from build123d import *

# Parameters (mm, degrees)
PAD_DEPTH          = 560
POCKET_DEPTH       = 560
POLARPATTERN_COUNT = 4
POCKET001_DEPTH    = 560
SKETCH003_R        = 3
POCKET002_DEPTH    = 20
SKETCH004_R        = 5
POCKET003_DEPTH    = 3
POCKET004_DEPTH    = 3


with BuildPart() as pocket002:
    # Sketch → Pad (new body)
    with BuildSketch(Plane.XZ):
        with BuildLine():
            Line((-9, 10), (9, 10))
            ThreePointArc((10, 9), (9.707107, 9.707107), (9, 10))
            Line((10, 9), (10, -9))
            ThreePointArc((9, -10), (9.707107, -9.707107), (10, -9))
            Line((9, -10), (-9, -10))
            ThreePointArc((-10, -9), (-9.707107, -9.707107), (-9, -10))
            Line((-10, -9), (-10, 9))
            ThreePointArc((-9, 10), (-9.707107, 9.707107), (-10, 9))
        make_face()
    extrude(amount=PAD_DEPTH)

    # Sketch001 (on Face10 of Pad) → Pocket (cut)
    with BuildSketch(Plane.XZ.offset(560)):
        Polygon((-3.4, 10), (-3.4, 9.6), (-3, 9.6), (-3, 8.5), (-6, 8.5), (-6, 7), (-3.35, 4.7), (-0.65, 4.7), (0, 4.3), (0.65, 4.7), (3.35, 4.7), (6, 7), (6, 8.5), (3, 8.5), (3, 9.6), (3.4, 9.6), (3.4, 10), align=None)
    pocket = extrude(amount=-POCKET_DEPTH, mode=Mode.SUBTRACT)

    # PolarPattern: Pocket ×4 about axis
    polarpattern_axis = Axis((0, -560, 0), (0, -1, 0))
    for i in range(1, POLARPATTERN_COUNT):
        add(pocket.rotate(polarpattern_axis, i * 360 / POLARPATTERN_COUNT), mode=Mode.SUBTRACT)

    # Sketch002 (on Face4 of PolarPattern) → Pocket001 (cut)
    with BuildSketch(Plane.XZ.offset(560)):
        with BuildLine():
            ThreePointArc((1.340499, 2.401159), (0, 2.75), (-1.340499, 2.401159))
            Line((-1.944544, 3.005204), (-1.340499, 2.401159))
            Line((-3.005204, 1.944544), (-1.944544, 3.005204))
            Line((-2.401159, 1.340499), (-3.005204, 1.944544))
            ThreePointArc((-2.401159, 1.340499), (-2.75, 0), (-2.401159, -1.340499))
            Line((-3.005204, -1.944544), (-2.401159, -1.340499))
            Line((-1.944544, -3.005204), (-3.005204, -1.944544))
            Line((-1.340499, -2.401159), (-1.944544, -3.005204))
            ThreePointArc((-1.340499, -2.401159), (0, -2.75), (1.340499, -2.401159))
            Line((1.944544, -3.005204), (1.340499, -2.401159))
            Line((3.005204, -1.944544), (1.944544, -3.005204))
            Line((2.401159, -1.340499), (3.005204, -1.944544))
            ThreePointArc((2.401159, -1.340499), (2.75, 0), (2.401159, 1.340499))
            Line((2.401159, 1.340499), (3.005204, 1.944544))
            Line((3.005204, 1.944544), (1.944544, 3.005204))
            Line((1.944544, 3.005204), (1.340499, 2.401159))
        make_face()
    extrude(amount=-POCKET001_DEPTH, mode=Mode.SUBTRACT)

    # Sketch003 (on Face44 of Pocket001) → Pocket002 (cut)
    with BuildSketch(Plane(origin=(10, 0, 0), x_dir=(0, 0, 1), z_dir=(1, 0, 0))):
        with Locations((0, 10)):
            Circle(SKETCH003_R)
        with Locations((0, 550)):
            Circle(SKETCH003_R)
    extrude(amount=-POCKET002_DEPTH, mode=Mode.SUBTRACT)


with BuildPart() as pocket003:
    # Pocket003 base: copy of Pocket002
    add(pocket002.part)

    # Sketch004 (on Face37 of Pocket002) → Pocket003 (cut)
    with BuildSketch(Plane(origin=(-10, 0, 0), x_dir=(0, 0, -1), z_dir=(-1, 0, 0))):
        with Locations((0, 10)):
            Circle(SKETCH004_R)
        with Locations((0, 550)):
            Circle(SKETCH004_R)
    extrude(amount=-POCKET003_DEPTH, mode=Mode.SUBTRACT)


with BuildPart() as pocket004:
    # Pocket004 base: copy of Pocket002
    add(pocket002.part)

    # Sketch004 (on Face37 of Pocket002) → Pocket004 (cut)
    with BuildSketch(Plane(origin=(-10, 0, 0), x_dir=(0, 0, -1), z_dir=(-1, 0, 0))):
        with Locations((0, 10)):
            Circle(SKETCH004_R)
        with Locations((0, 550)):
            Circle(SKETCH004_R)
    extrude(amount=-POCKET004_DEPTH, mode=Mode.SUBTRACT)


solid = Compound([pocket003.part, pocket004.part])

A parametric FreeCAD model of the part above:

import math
import FreeCAD as App
import Part
import Sketcher
from FreeCAD import Vector
Q = App.Units.Quantity

doc = App.newDocument("Part")
body = doc.addObject("PartDesign::Body", "Body")

# Sketch on XZ plane
sketch1 = body.newObject("Sketcher::SketchObject", "Sketch")
sketch1.AttachmentSupport = (doc.getObject("XZ_Plane"), [""])
sketch1.MapMode = "FlatFace"
sketch1.addGeometry([
    Part.LineSegment(Vector(9, 10, 0), Vector(-9, 10, 0)),  # 0
    Part.ArcOfCircle(Part.Circle(Vector(-9, 9, 0), Vector(0, 0, 1), 1), math.radians(90), math.radians(180)),  # 1
    Part.LineSegment(Vector(-10, 9, 0), Vector(-10, -9, 0)),  # 2
    Part.ArcOfCircle(Part.Circle(Vector(-9, -9, 0), Vector(0, 0, 1), 1), math.radians(180), math.radians(270)),  # 3
    Part.LineSegment(Vector(-9, -10, 0), Vector(9, -10, 0)),  # 4
    Part.ArcOfCircle(Part.Circle(Vector(9, -9, 0), Vector(0, 0, 1), 1), math.radians(-90), math.radians(0)),  # 5
    Part.LineSegment(Vector(10, -9, 0), Vector(10, 9, 0)),  # 6
    Part.ArcOfCircle(Part.Circle(Vector(9, 9, 0), Vector(0, 0, 1), 1), math.radians(0), math.radians(90)),  # 7
], False)
sketch1.addConstraint([
    Sketcher.Constraint("Tangent", 0, 2, 1, 1),
    Sketcher.Constraint("Tangent", 1, 2, 2, 1),
    Sketcher.Constraint("Tangent", 2, 2, 3, 1),
    Sketcher.Constraint("Tangent", 3, 2, 4, 1),
    Sketcher.Constraint("Tangent", 4, 2, 5, 1),
    Sketcher.Constraint("Tangent", 5, 2, 6, 1),
    Sketcher.Constraint("Tangent", 6, 2, 7, 1),
    Sketcher.Constraint("Tangent", 7, 2, 0, 1),
    Sketcher.Constraint("Horizontal", 0),
    Sketcher.Constraint("Vertical", 2),
    Sketcher.Constraint("Horizontal", 4),
    Sketcher.Constraint("Vertical", 6),
    Sketcher.Constraint("Equal", 1, 3),
    Sketcher.Constraint("Equal", 3, 5),
    Sketcher.Constraint("Equal", 5, 7),
    Sketcher.Constraint("Symmetric", 1, 3, 5, 3, -1, 1),
    Sketcher.Constraint("Equal", 4, 2),
    Sketcher.Constraint("Radius", 1, Q("0.999999 mm")),
    Sketcher.Constraint("DistanceX", 0, 2, 0, 1, Q("18 mm")),
])
pad1 = body.newObject("PartDesign::Pad", "Pad")
pad1.Profile = sketch1
pad1.Length = 560

# Sketch on XZ plane
sketch2 = body.newObject("Sketcher::SketchObject", "Sketch001")
sketch2.AttachmentSupport = (doc.getObject("XZ_Plane"), [""])
sketch2.MapMode = "FlatFace"
sketch2.AttachmentOffset = App.Placement(Vector(0, 0, 560), App.Rotation())
sketch2.addGeometry([
    Part.LineSegment(Vector(-3.4, 10, 0), Vector(-3.4, 9.6, 0)),  # 0
    Part.LineSegment(Vector(-3.4, 9.6, 0), Vector(-3, 9.6, 0)),  # 1
    Part.LineSegment(Vector(-3, 9.6, 0), Vector(-3, 8.5, 0)),  # 2
    Part.LineSegment(Vector(-3, 8.5, 0), Vector(-6, 8.5, 0)),  # 3
    Part.LineSegment(Vector(-6, 8.5, 0), Vector(-6, 7, 0)),  # 4
    Part.LineSegment(Vector(-6, 7, 0), Vector(-3.35, 4.7, 0)),  # 5
    Part.LineSegment(Vector(-3.35, 4.7, 0), Vector(-0.65, 4.7, 0)),  # 6
    Part.LineSegment(Vector(-0.65, 4.7, 0), Vector(0, 4.3, 0)),  # 7
    Part.LineSegment(Vector(0, 4.3, 0), Vector(0.65, 4.7, 0)),  # 8
    Part.LineSegment(Vector(0.65, 4.7, 0), Vector(3.35, 4.7, 0)),  # 9
    Part.LineSegment(Vector(3.35, 4.7, 0), Vector(6, 7, 0)),  # 10
    Part.LineSegment(Vector(6, 7, 0), Vector(6, 8.5, 0)),  # 11
    Part.LineSegment(Vector(6, 8.5, 0), Vector(3, 8.5, 0)),  # 12
    Part.LineSegment(Vector(3, 8.5, 0), Vector(3, 9.6, 0)),  # 13
    Part.LineSegment(Vector(3, 9.6, 0), Vector(3.4, 9.6, 0)),  # 14
    Part.LineSegment(Vector(3.4, 9.6, 0), Vector(3.4, 10, 0)),  # 15
    Part.LineSegment(Vector(3.4, 10, 0), Vector(-3.4, 10, 0)),  # 16
], False)
sketch2.addConstraint([
    Sketcher.Constraint("Coincident", 0, 2, 1, 1),
    Sketcher.Constraint("Coincident", 1, 2, 2, 1),
    Sketcher.Constraint("Coincident", 2, 2, 3, 1),
    Sketcher.Constraint("Coincident", 3, 2, 4, 1),
    Sketcher.Constraint("Coincident", 4, 2, 5, 1),
    Sketcher.Constraint("Coincident", 5, 2, 6, 1),
    Sketcher.Constraint("Coincident", 6, 2, 7, 1),
    Sketcher.Constraint("Coincident", 7, 2, 8, 1),
    Sketcher.Constraint("Coincident", 8, 2, 9, 1),
    Sketcher.Constraint("Coincident", 9, 2, 10, 1),
    Sketcher.Constraint("Coincident", 10, 2, 11, 1),
    Sketcher.Constraint("Coincident", 11, 2, 12, 1),
    Sketcher.Constraint("Coincident", 12, 2, 13, 1),
    Sketcher.Constraint("Coincident", 13, 2, 14, 1),
    Sketcher.Constraint("Coincident", 14, 2, 15, 1),
    Sketcher.Constraint("Coincident", 15, 2, 16, 1),
    Sketcher.Constraint("Coincident", 16, 2, 0, 1),
    Sketcher.Constraint("Vertical", 0),
    Sketcher.Constraint("Horizontal", 1),
    Sketcher.Constraint("Vertical", 2),
    Sketcher.Constraint("Horizontal", 3),
    Sketcher.Constraint("Vertical", 4),
    Sketcher.Constraint("Horizontal", 6),
    Sketcher.Constraint("Horizontal", 9),
    Sketcher.Constraint("Vertical", 11),
    Sketcher.Constraint("Horizontal", 12),
    Sketcher.Constraint("Vertical", 13),
    Sketcher.Constraint("Horizontal", 14),
    Sketcher.Constraint("Vertical", 15),
    Sketcher.Constraint("Horizontal", 16),
    Sketcher.Constraint("Symmetric", 6, 2, 8, 2, -2),
    Sketcher.Constraint("Symmetric", 4, 2, 10, 2, -2),
    Sketcher.Constraint("Symmetric", 2, 2, 12, 2, -2),
    Sketcher.Constraint("Symmetric", 0, 2, 14, 2, -2),
    Sketcher.Constraint("PointOnObject", 7, 2, -2),
    Sketcher.Constraint("Equal", 6, 9),
    Sketcher.Constraint("Equal", 14, 0),
    Sketcher.Constraint("DistanceX", 3, 2, 3, 1, Q("3 mm")),
    Sketcher.Constraint("DistanceX", 1, 1, 1, 2, Q("0.4 mm")),
    Sketcher.Constraint("DistanceX", 6, 1, 6, 2, Q("2.7 mm")),
    Sketcher.Constraint("DistanceX", 16, 2, 16, 1, Q("6.8 mm")),
    Sketcher.Constraint("DistanceY", 2, 2, 2, 1, Q("1.1 mm")),
    Sketcher.Constraint("DistanceY", 4, 2, 4, 1, Q("1.5 mm")),
    Sketcher.Constraint("DistanceY", -1, 1, 4, 2, Q("7 mm")),
    Sketcher.Constraint("DistanceX", 5, 2, 8, 2, Q("4 mm")),
    Sketcher.Constraint("DistanceY", -1, 1, 5, 2, Q("4.7 mm")),
    Sketcher.Constraint("DistanceY", -1, 1, 7, 2, Q("4.3 mm")),
])
pocket1 = body.newObject("PartDesign::Pocket", "Pocket")
pocket1.Profile = sketch2
pocket1.Length = 560
doc.recompute()

polarpattern = body.newObject("PartDesign::PolarPattern", "PolarPattern")
polarpattern.Originals = [pocket1]
polarpattern.Axis = (doc.getObject("Y_Axis"), [""])
polarpattern.Angle = 360
polarpattern.Occurrences = 4
body.Tip = polarpattern

# Sketch on XZ plane
sketch3 = body.newObject("Sketcher::SketchObject", "Sketch002")
sketch3.AttachmentSupport = (doc.getObject("XZ_Plane"), [""])
sketch3.MapMode = "FlatFace"
sketch3.AttachmentOffset = App.Placement(Vector(0, 0, 560), App.Rotation())
sketch3.addGeometry([
    Part.ArcOfCircle(Part.Circle(Vector(0, 0, 0), Vector(0, 0, 1), 2.8), math.radians(61), math.radians(119)),  # 0
    Part.LineSegment(Vector(-1.3, 2.4, 0), Vector(-1.9, 3, 0)),  # 1
    Part.LineSegment(Vector(-1.9, 3, 0), Vector(-3, 1.9, 0)),  # 2
    Part.LineSegment(Vector(-3, 1.9, 0), Vector(-2.4, 1.3, 0)),  # 3
    Part.ArcOfCircle(Part.Circle(Vector(0, 0, 0), Vector(0, 0, 1), 2.8), math.radians(151), math.radians(209)),  # 4
    Part.LineSegment(Vector(-2.4, -1.3, 0), Vector(-3, -1.9, 0)),  # 5
    Part.LineSegment(Vector(-3, -1.9, 0), Vector(-1.9, -3, 0)),  # 6
    Part.LineSegment(Vector(-1.9, -3, 0), Vector(-1.3, -2.4, 0)),  # 7
    Part.ArcOfCircle(Part.Circle(Vector(0, 0, 0), Vector(0, 0, 1), 2.8), math.radians(-119), math.radians(-61)),  # 8
    Part.LineSegment(Vector(1.3, -2.4, 0), Vector(1.9, -3, 0)),  # 9
    Part.LineSegment(Vector(1.9, -3, 0), Vector(3, -1.9, 0)),  # 10
    Part.LineSegment(Vector(3, -1.9, 0), Vector(2.4, -1.3, 0)),  # 11
    Part.ArcOfCircle(Part.Circle(Vector(0, 0, 0), Vector(0, 0, 1), 2.8), math.radians(-29), math.radians(29)),  # 12
    Part.LineSegment(Vector(2.4, 1.3, 0), Vector(3, 1.9, 0)),  # 13
    Part.LineSegment(Vector(3, 1.9, 0), Vector(1.9, 3, 0)),  # 14
    Part.LineSegment(Vector(1.9, 3, 0), Vector(1.3, 2.4, 0)),  # 15
], False)
sketch3.addConstraint([
    Sketcher.Constraint("Coincident", 0, 2, 1, 1),
    Sketcher.Constraint("Coincident", 1, 2, 2, 1),
    Sketcher.Constraint("Coincident", 2, 2, 3, 1),
    Sketcher.Constraint("Coincident", 3, 2, 4, 1),
    Sketcher.Constraint("Coincident", 4, 2, 5, 1),
    Sketcher.Constraint("Coincident", 5, 2, 6, 1),
    Sketcher.Constraint("Coincident", 6, 2, 7, 1),
    Sketcher.Constraint("Coincident", 7, 2, 8, 1),
    Sketcher.Constraint("Coincident", 8, 2, 9, 1),
    Sketcher.Constraint("Coincident", 9, 2, 10, 1),
    Sketcher.Constraint("Coincident", 10, 2, 11, 1),
    Sketcher.Constraint("Coincident", 11, 2, 12, 1),
    Sketcher.Constraint("Coincident", 12, 2, 13, 1),
    Sketcher.Constraint("Coincident", 13, 2, 14, 1),
    Sketcher.Constraint("Coincident", 14, 2, 15, 1),
    Sketcher.Constraint("Coincident", 15, 2, 0, 1),
    Sketcher.Constraint("Coincident", 0, 3, -1, 1),
    Sketcher.Constraint("Coincident", 4, 3, -1, 1),
    Sketcher.Constraint("Coincident", 8, 3, -1, 1),
    Sketcher.Constraint("Coincident", 12, 3, -1, 1),
    Sketcher.Constraint("Equal", 0, 4),
    Sketcher.Constraint("Equal", 4, 8),
    Sketcher.Constraint("Equal", 8, 12),
    Sketcher.Constraint("Symmetric", 1, 2, 9, 2, -1, 1),
    Sketcher.Constraint("Symmetric", 2, 2, 10, 2, -1, 1),
    Sketcher.Constraint("Symmetric", 5, 2, 13, 2, -1, 1),
    Sketcher.Constraint("Symmetric", 6, 2, 14, 2, -1, 1),
    Sketcher.Constraint("Symmetric", 6, 2, 9, 2, -2),
    Sketcher.Constraint("Symmetric", 5, 2, 10, 2, -2),
    Sketcher.Constraint("Perpendicular", 1, 2),
    Sketcher.Constraint("Perpendicular", 2, 3),
    Sketcher.Constraint("Perpendicular", 3, 5),
    Sketcher.Constraint("Perpendicular", 5, 6),
    Sketcher.Constraint("Perpendicular", 6, 7),
    Sketcher.Constraint("Perpendicular", 7, 9),
    Sketcher.Constraint("Perpendicular", 10, 11),
    Sketcher.Constraint("Perpendicular", 11, 13),
    Sketcher.Constraint("Perpendicular", 14, 15),
    Sketcher.Constraint("Equal", 1, 3),
    Sketcher.Constraint("Distance", 2, Q("1.5 mm")),
    Sketcher.Constraint("Radius", 0, Q("2.750003 mm")),
    Sketcher.Constraint("DistanceY", 8, 3, 1, 2, Q("3.005201 mm")),
])
pocket2 = body.newObject("PartDesign::Pocket", "Pocket001")
pocket2.Profile = sketch3
pocket2.Length = 560

# Sketch on YZ plane
sketch4 = body.newObject("Sketcher::SketchObject", "Sketch003")
sketch4.AttachmentSupport = (doc.getObject("YZ_Plane"), [""])
sketch4.MapMode = "FlatFace"
sketch4.AttachmentOffset = App.Placement(Vector(0, 0, 10), App.Rotation())
sketch4.addGeometry([
    Part.Circle(Vector(-10, 0, 0), Vector(0, 0, 1), 3),
    Part.Circle(Vector(-550, 0, 0), Vector(0, 0, 1), 3),
], False)
sketch4.addConstraint([
    Sketcher.Constraint("Equal", 0, 1),
    Sketcher.Constraint("PointOnObject", 0, 3, -1),
    Sketcher.Constraint("PointOnObject", 1, 3, -1),
    Sketcher.Constraint("Diameter", 0, Q("6 mm")),
    Sketcher.Constraint("DistanceX", 0, 3, -1, 1, Q("10 mm")),
    Sketcher.Constraint("DistanceX", 1, 3, -1, 1, Q("550 mm")),
])
pocket3 = body.newObject("PartDesign::Pocket", "Pocket002")
pocket3.Profile = sketch4
pocket3.Length = 20
body2 = doc.addObject("PartDesign::Body", "Body001")
doc.recompute()

body2.BaseFeature = body
doc.recompute()

# Sketch on YZ plane
sketch5 = body2.newObject("Sketcher::SketchObject", "Sketch004")
sketch5.AttachmentSupport = (doc.getObject("YZ_Plane001"), [""])
sketch5.MapMode = "FlatFace"
sketch5.AttachmentOffset = App.Placement(Vector(0, 0, -10), App.Rotation())
sketch5.addGeometry([
    Part.Circle(Vector(-10, 0, 0), Vector(0, 0, 1), 5),
    Part.Circle(Vector(-550, 0, 0), Vector(0, 0, 1), 5),
], False)
sketch5.addConstraint([
    Sketcher.Constraint("Equal", 0, 1),
    Sketcher.Constraint("PointOnObject", 0, 3, -1),
    Sketcher.Constraint("PointOnObject", 1, 3, -1),
    Sketcher.Constraint("Diameter", 0, Q("10 mm")),
    Sketcher.Constraint("DistanceX", 0, 3, -1, 1, Q("10 mm")),
    Sketcher.Constraint("DistanceX", 1, 3, -1, 1, Q("550 mm")),
])
pocket4 = body2.newObject("PartDesign::Pocket", "Pocket003")
pocket4.Profile = sketch5
pocket4.Length = 3
pocket4.Reversed = True

# Sketch on YZ plane
sketch6 = body.newObject("Sketcher::SketchObject", "Sketch005")
sketch6.AttachmentSupport = (doc.getObject("YZ_Plane"), [""])
sketch6.MapMode = "FlatFace"
sketch6.AttachmentOffset = App.Placement(Vector(0, 0, -10), App.Rotation())
sketch6.addGeometry([
    Part.Circle(Vector(-10, 0, 0), Vector(0, 0, 1), 5),
    Part.Circle(Vector(-550, 0, 0), Vector(0, 0, 1), 5),
], False)
sketch6.addConstraint([
    Sketcher.Constraint("Equal", 0, 1),
    Sketcher.Constraint("PointOnObject", 0, 3, -1),
    Sketcher.Constraint("PointOnObject", 1, 3, -1),
    Sketcher.Constraint("Diameter", 0, Q("10 mm")),
    Sketcher.Constraint("DistanceX", 0, 3, -1, 1, Q("10 mm")),
    Sketcher.Constraint("DistanceX", 1, 3, -1, 1, Q("550 mm")),
])
pocket5 = body.newObject("PartDesign::Pocket", "Pocket004")
pocket5.Profile = sketch6
pocket5.Length = 3
pocket5.Reversed = True

doc.recompute()
